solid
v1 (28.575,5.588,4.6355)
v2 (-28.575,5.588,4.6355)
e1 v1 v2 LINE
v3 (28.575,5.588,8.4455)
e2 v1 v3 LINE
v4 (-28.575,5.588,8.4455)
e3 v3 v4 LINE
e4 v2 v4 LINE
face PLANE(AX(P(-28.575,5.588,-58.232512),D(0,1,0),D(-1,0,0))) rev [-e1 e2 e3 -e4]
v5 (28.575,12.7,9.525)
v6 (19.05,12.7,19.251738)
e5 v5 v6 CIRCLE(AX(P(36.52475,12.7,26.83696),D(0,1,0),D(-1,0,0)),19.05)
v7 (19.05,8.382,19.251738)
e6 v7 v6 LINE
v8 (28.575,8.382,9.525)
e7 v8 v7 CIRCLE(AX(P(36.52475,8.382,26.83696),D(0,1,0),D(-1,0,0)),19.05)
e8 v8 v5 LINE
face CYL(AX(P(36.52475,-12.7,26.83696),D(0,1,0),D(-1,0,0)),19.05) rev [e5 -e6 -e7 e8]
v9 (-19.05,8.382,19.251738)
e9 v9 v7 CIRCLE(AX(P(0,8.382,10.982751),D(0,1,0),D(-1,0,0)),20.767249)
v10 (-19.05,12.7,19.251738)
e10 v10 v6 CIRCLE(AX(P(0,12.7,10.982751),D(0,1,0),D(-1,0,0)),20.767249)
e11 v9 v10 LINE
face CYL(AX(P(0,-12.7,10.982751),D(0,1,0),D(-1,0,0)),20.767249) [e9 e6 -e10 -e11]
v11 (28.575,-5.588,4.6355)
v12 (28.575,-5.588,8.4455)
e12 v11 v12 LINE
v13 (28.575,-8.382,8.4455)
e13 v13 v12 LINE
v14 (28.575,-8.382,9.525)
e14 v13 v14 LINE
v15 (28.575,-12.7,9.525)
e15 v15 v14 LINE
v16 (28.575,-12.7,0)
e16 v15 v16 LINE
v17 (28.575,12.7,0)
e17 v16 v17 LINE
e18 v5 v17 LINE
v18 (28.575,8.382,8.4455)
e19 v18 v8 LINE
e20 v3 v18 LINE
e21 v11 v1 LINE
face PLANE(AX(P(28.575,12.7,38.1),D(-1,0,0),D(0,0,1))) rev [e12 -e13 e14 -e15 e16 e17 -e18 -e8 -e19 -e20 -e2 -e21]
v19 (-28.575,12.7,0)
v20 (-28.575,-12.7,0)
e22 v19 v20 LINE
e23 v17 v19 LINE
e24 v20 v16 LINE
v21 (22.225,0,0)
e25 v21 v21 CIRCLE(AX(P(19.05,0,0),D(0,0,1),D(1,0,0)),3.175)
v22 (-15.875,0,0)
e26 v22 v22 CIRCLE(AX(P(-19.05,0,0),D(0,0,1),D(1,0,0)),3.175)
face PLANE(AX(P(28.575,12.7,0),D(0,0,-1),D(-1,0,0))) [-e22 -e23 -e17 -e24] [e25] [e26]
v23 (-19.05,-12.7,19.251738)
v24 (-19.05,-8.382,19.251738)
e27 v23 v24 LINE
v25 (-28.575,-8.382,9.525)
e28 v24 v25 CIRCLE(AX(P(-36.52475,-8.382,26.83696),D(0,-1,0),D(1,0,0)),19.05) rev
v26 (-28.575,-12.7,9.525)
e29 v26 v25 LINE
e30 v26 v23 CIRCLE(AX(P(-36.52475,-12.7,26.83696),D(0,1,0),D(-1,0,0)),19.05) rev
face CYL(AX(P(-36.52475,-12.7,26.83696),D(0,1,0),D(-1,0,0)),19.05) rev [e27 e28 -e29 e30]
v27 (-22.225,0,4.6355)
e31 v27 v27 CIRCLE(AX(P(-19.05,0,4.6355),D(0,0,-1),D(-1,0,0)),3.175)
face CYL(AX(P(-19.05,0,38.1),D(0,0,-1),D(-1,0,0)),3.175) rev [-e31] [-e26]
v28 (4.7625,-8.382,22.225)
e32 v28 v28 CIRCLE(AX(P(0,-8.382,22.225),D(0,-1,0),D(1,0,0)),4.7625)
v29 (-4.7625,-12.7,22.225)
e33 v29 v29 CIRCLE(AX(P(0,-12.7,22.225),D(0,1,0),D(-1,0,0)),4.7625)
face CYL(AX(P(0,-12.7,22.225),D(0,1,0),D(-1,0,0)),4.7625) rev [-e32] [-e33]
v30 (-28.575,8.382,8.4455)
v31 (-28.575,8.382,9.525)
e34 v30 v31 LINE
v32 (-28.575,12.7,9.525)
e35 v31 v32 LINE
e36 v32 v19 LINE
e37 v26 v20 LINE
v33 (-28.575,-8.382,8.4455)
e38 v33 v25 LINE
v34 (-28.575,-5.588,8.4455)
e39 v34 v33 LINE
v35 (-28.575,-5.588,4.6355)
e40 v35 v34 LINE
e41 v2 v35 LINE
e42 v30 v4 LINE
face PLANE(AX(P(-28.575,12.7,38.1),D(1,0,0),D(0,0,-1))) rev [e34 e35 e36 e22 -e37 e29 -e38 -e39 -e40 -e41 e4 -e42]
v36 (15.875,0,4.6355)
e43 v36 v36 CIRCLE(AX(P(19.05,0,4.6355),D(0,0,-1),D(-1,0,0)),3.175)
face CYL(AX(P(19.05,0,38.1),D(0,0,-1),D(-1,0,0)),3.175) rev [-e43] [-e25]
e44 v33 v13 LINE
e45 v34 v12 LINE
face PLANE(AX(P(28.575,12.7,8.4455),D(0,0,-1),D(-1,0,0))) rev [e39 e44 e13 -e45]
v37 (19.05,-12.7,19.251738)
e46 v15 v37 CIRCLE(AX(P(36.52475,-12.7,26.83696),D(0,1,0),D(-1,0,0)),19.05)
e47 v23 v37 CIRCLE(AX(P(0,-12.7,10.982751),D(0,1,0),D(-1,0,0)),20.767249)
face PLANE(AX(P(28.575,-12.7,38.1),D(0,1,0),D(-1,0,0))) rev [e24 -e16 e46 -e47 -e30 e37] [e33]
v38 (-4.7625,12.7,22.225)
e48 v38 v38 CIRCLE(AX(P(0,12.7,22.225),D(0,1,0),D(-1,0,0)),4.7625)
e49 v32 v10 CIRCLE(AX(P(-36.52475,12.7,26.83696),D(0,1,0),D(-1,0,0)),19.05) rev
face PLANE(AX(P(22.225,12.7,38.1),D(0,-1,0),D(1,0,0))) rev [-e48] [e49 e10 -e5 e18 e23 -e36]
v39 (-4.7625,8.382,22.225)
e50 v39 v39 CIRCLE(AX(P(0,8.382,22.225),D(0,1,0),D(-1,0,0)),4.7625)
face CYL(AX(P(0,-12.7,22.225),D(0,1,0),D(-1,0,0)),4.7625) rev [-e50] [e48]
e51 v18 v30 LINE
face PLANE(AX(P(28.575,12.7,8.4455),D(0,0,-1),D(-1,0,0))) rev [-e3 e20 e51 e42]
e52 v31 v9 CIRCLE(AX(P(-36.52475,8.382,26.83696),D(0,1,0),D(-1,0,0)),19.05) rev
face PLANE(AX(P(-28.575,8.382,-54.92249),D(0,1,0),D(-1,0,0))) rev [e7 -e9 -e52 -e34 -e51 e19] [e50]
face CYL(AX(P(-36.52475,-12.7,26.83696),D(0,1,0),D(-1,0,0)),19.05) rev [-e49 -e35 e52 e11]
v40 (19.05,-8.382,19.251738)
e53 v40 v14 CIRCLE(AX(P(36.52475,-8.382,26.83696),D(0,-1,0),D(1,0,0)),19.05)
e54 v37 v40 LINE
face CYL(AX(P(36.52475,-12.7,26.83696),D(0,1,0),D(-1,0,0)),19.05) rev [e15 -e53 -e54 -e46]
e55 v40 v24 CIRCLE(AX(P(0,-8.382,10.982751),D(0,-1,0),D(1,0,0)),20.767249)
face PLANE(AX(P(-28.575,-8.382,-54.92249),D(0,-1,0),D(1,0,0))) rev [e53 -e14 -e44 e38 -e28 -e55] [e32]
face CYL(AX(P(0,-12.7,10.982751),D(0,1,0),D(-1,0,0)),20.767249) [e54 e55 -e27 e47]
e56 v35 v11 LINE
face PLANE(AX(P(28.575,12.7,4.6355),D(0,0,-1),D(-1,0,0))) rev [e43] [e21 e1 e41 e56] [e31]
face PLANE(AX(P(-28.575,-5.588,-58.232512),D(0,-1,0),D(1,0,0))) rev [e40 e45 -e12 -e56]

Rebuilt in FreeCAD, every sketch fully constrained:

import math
import FreeCAD as App
import Part
import Sketcher
Q = App.Units.Quantity

doc = App.newDocument("Part")
body = doc.addObject("PartDesign::Body", "Body")

# Sketch on XY plane
sketch1 = body.newObject("Sketcher::SketchObject", "Sketch")
sketch1.AttachmentSupport = (doc.getObject("XY_Plane"), [""])
sketch1.MapMode = "FlatFace"
sketch1.addGeometry([
    Part.LineSegment(App.Vector(-28.6, 12.7, 0), App.Vector(-28.6, -12.7, 0)),  # 0
    Part.LineSegment(App.Vector(-28.6, -12.7, 0), App.Vector(28.6, -12.7, 0)),  # 1
    Part.LineSegment(App.Vector(28.6, -12.7, 0), App.Vector(28.6, 12.7, 0)),  # 2
    Part.LineSegment(App.Vector(28.6, 12.7, 0), App.Vector(-28.6, 12.7, 0)),  # 3
    Part.Circle(App.Vector(-19.1, 0, 0), App.Vector(0, 0, 1), 3.2),  # 4
    Part.Circle(App.Vector(19.1, 0, 0), App.Vector(0, 0, 1), 3.2),  # 5
], False)
sketch1.addConstraint([
    Sketcher.Constraint("Coincident", 0, 2, 1, 1),
    Sketcher.Constraint("Coincident", 1, 2, 2, 1),
    Sketcher.Constraint("Coincident", 2, 2, 3, 1),
    Sketcher.Constraint("Coincident", 3, 2, 0, 1),
    Sketcher.Constraint("Vertical", 0),
    Sketcher.Constraint("Horizontal", 1),
    Sketcher.Constraint("Vertical", 2),
    Sketcher.Constraint("Horizontal", 3),
    Sketcher.Constraint("Equal", 4, 5),
    Sketcher.Constraint("Symmetric", 4, 3, 5, 3, -1, 1),
    Sketcher.Constraint("Symmetric", 0, 2, 2, 2, -1, 1),
    Sketcher.Constraint("PointOnObject", 4, 3, -1),
    Sketcher.Constraint("Diameter", 4, Q("0.25 in")),
    Sketcher.Constraint("DistanceY", 0, 2, 0, 1, Q("1 in")),
    Sketcher.Constraint("DistanceX", 1, 1, 1, 2, Q("2.25 in")),
    Sketcher.Constraint("DistanceX", 4, 3, 5, 3, Q("1.5 in")),
])
pad1 = body.newObject("PartDesign::Pad", "Pad")
pad1.Profile = sketch1
pad1.Length = Q("1.5 in")

# Sketch on XY plane
sketch2 = body.newObject("Sketcher::SketchObject", "Sketch001")
sketch2.AttachmentSupport = (doc.getObject("XY_Plane"), [""])
sketch2.MapMode = "FlatFace"
sketch2.AttachmentOffset = App.Placement(App.Vector(0, 0, 1.5 * 25.4), App.Rotation())
sketch2.addGeometry([
    Part.LineSegment(App.Vector(-29, 6, 0), App.Vector(-29, -6, 0)),
    Part.LineSegment(App.Vector(-29, -6, 0), App.Vector(29, -6, 0)),
    Part.LineSegment(App.Vector(29, -6, 0), App.Vector(29, 6, 0)),
    Part.LineSegment(App.Vector(29, 6, 0), App.Vector(-29, 6, 0)),
], False)
sketch2.addConstraint([
    Sketcher.Constraint("Coincident", 0, 2, 1, 1),
    Sketcher.Constraint("Coincident", 1, 2, 2, 1),
    Sketcher.Constraint("Coincident", 2, 2, 3, 1),
    Sketcher.Constraint("Coincident", 3, 2, 0, 1),
    Sketcher.Constraint("Vertical", 0),
    Sketcher.Constraint("Horizontal", 1),
    Sketcher.Constraint("Vertical", 2),
    Sketcher.Constraint("Horizontal", 3),
    Sketcher.Constraint("Symmetric", 0, 2, 2, 2, -1, 1),
    Sketcher.Constraint("DistanceX", 1, 1, 1, 2, Q("2.25 in")),
    Sketcher.Constraint("DistanceY", 0, 2, 0, 1, Q("0.44 in")),
])
pocket1 = body.newObject("PartDesign::Pocket", "Pocket")
pocket1.Profile = sketch2
pocket1.Length = Q("1.3175 in")

# Sketch on XY plane
sketch3 = body.newObject("Sketcher::SketchObject", "Sketch002")
sketch3.AttachmentSupport = (doc.getObject("XY_Plane"), [""])
sketch3.MapMode = "FlatFace"
sketch3.AttachmentOffset = App.Placement(App.Vector(0, 0, 1.5 * 25.4), App.Rotation())
sketch3.addGeometry([
    Part.LineSegment(App.Vector(-29, 8, 0), App.Vector(-29, -8, 0)),
    Part.LineSegment(App.Vector(-29, -8, 0), App.Vector(29, -8, 0)),
    Part.LineSegment(App.Vector(29, -8, 0), App.Vector(29, 8, 0)),
    Part.LineSegment(App.Vector(29, 8, 0), App.Vector(-29, 8, 0)),
], False)
sketch3.addConstraint([
    Sketcher.Constraint("Coincident", 0, 2, 1, 1),
    Sketcher.Constraint("Coincident", 1, 2, 2, 1),
    Sketcher.Constraint("Coincident", 2, 2, 3, 1),
    Sketcher.Constraint("Coincident", 3, 2, 0, 1),
    Sketcher.Constraint("Vertical", 0),
    Sketcher.Constraint("Horizontal", 1),
    Sketcher.Constraint("Vertical", 2),
    Sketcher.Constraint("Horizontal", 3),
    Sketcher.Constraint("Symmetric", 0, 2, 2, 2, -1, 1),
    Sketcher.Constraint("DistanceX", 1, 1, 1, 2, Q("2.25 in")),
    Sketcher.Constraint("DistanceY", 0, 2, 0, 1, Q("0.66 in")),
])
pocket2 = body.newObject("PartDesign::Pocket", "Pocket001")
pocket2.Profile = sketch3
pocket2.Length = Q("1.1675 in")

# Sketch on XZ plane
sketch4 = body.newObject("Sketcher::SketchObject", "Sketch003")
sketch4.AttachmentSupport = (doc.getObject("XZ_Plane"), [""])
sketch4.MapMode = "FlatFace"
sketch4.AttachmentOffset = App.Placement(App.Vector(0, 0, -0.5 * 25.4), App.Rotation())
sketch4.addGeometry(Part.Circle(App.Vector(0, 22.2, 0), App.Vector(0, 0, 1), 4.8), False)
sketch4.addConstraint([
    Sketcher.Constraint("PointOnObject", 0, 3, -2),
    Sketcher.Constraint("Diameter", 0, Q("0.375 in")),
    Sketcher.Constraint("DistanceY", -1, 1, 0, 3, Q("0.875 in")),
])
pocket3 = body.newObject("PartDesign::Pocket", "Pocket002")
pocket3.Profile = sketch4
pocket3.Type = "ThroughAll"
pocket3.Reversed = True

# Sketch on XZ plane
sketch5 = body.newObject("Sketcher::SketchObject", "Sketch004")
sketch5.AttachmentSupport = (doc.getObject("XZ_Plane"), [""])
sketch5.MapMode = "FlatFace"
sketch5.AttachmentOffset = App.Placement(App.Vector(0, 0, -0.5 * 25.4), App.Rotation())
sketch5.addGeometry([
    Part.LineSegment(App.Vector(-29, 10, 0), App.Vector(-29, 38, 0)),  # 0
    Part.LineSegment(App.Vector(-29, 38, 0), App.Vector(29, 38, 0)),  # 1
    Part.LineSegment(App.Vector(29, 38, 0), App.Vector(29, 10, 0)),  # 2
    Part.ArcOfCircle(Part.Circle(App.Vector(37, 27, 0), App.Vector(0, 0, 1), 19), math.radians(-157), math.radians(-115)),  # 3
    Part.ArcOfCircle(Part.Circle(App.Vector(0, 11, 0), App.Vector(0, 0, 1), 21), math.radians(23), math.radians(157)),  # 4
    Part.ArcOfCircle(Part.Circle(App.Vector(-37, 27, 0), App.Vector(0, 0, 1), 19), math.radians(-65), math.radians(-23)),  # 5
], False)
sketch5.addConstraint([
    Sketcher.Constraint("Coincident", 0, 2, 1, 1),
    Sketcher.Constraint("Coincident", 1, 2, 2, 1),
    Sketcher.Constraint("Coincident", 2, 2, 3, 2),
    Sketcher.Constraint("Tangent", 3, 1, 4, 1),
    Sketcher.Constraint("Tangent", 4, 2, 5, 2),
    Sketcher.Constraint("Coincident", 5, 1, 0, 1),
    Sketcher.Constraint("Vertical", 0),
    Sketcher.Constraint("Horizontal", 1),
    Sketcher.Constraint("Vertical", 2),
    Sketcher.Constraint("Equal", 3, 5),
    Sketcher.Constraint("Symmetric", 3, 3, 5, 3, -2),
    Sketcher.Constraint("Horizontal", 2, 2, 5, 1),
    Sketcher.Constraint("Radius", 3, Q("0.75 in")),
    Sketcher.Constraint("DistanceX", 1, 1, 1, 2, Q("2.25 in")),
    Sketcher.Constraint("DistanceY", -1, 1, 0, 2, Q("1.5 in")),
    Sketcher.Constraint("DistanceX", 4, 2, 3, 1, Q("1.5 in")),
    Sketcher.Constraint("DistanceY", 0, 1, 0, 2, Q("1.125 in")),
    Sketcher.Constraint("Radius", 4, Q("20.767249 mm")),
])
pocket4 = body.newObject("PartDesign::Pocket", "Pocket003")
pocket4.Profile = sketch5
pocket4.Type = "ThroughAll"
pocket4.Reversed = True

doc.recompute()
